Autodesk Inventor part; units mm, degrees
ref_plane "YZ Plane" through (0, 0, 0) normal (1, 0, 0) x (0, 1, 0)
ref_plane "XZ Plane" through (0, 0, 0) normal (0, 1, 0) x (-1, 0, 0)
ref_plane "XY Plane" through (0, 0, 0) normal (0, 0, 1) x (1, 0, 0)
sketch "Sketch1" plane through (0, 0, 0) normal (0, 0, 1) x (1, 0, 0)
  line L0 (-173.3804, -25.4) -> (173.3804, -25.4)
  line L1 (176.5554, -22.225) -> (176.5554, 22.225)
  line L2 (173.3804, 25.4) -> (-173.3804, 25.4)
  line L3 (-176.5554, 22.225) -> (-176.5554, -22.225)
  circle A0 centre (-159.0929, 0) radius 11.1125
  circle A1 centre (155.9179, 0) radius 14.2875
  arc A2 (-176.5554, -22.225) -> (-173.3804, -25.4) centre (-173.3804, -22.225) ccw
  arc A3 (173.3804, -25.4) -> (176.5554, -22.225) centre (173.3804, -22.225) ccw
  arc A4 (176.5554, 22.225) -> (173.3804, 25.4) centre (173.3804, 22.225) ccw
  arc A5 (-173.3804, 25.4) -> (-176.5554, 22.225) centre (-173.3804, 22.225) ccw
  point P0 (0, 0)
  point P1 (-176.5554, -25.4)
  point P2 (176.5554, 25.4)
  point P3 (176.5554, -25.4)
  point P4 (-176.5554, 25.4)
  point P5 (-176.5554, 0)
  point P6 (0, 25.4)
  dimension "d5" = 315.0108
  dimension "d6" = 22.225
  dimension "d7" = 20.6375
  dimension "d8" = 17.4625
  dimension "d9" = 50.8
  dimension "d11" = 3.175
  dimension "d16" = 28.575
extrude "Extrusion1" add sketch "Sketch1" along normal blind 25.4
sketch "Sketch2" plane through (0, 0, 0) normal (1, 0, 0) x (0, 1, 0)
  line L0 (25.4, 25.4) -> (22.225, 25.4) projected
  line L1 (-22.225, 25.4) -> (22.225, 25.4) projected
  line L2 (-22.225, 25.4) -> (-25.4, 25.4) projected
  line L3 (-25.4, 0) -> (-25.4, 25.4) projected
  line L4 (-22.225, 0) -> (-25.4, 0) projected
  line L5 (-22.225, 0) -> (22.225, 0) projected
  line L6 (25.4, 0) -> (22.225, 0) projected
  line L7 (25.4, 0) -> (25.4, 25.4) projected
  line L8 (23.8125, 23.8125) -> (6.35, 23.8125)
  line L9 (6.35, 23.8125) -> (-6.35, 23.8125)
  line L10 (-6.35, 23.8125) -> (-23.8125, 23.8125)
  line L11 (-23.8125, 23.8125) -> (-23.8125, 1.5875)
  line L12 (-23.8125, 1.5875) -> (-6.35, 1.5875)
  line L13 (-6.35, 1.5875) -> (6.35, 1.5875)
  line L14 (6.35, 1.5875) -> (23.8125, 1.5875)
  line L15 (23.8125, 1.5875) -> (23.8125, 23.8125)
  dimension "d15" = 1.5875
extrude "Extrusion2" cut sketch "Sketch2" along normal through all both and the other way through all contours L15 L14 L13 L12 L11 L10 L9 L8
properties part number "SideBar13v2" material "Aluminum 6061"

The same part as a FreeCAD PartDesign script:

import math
import FreeCAD as App
import Part
import Sketcher
Q = App.Units.Quantity

doc = App.newDocument("Part")
body = doc.addObject("PartDesign::Body", "Body")

# Sketch on XY plane
sketch1 = body.newObject("Sketcher::SketchObject", "Sketch")
sketch1.AttachmentSupport = (doc.getObject("XY_Plane"), [""])
sketch1.MapMode = "FlatFace"
sketch1.addGeometry([
    Part.ArcOfCircle(Part.Circle(App.Vector(-173.4, -22.2, 0), App.Vector(0, 0, 1), 3.2), math.radians(180), math.radians(270)),  # 0
    Part.LineSegment(App.Vector(-173.4, -25.4, 0), App.Vector(173.4, -25.4, 0)),  # 1
    Part.ArcOfCircle(Part.Circle(App.Vector(173.4, -22.2, 0), App.Vector(0, 0, 1), 3.2), math.radians(-90), math.radians(0)),  # 2
    Part.LineSegment(App.Vector(176.6, -22.2, 0), App.Vector(176.6, 22.2, 0)),  # 3
    Part.ArcOfCircle(Part.Circle(App.Vector(173.4, 22.2, 0), App.Vector(0, 0, 1), 3.2), math.radians(0), math.radians(90)),  # 4
    Part.LineSegment(App.Vector(173.4, 25.4, 0), App.Vector(-173.4, 25.4, 0)),  # 5
    Part.ArcOfCircle(Part.Circle(App.Vector(-173.4, 22.2, 0), App.Vector(0, 0, 1), 3.2), math.radians(90), math.radians(180)),  # 6
    Part.LineSegment(App.Vector(-176.6, 22.2, 0), App.Vector(-176.6, -22.2, 0)),  # 7
    Part.Circle(App.Vector(-159.1, 0, 0), App.Vector(0, 0, 1), 11.1),  # 8
    Part.Circle(App.Vector(155.9, 0, 0), App.Vector(0, 0, 1), 14.3),  # 9
], False)
sketch1.addConstraint([
    Sketcher.Constraint("Tangent", 0, 2, 1, 1),
    Sketcher.Constraint("Tangent", 1, 2, 2, 1),
    Sketcher.Constraint("Tangent", 2, 2, 3, 1),
    Sketcher.Constraint("Tangent", 3, 2, 4, 1),
    Sketcher.Constraint("Tangent", 4, 2, 5, 1),
    Sketcher.Constraint("Tangent", 5, 2, 6, 1),
    Sketcher.Constraint("Tangent", 6, 2, 7, 1),
    Sketcher.Constraint("Tangent", 7, 2, 0, 1),
    Sketcher.Constraint("Horizontal", 1),
    Sketcher.Constraint("Vertical", 3),
    Sketcher.Constraint("Horizontal", 5),
    Sketcher.Constraint("Vertical", 7),
    Sketcher.Constraint("Equal", 0, 2),
    Sketcher.Constraint("Equal", 2, 4),
    Sketcher.Constraint("Equal", 4, 6),
    Sketcher.Constraint("Symmetric", 0, 3, 4, 3, -1, 1),
    Sketcher.Constraint("PointOnObject", 8, 3, -1),
    Sketcher.Constraint("PointOnObject", 9, 3, -1),
    Sketcher.Constraint("Diameter", 8, Q("0.875 in")),
    Sketcher.Constraint("Diameter", 9, Q("1.125 in")),
    Sketcher.Constraint("Radius", 0, Q("0.125 in")),
    Sketcher.Constraint("DistanceY", 0, 2, 5, 2, Q("2 in")),
    Sketcher.Constraint("DistanceX", 9, 3, 2, 3, Q("0.6875 in")),
    Sketcher.Constraint("DistanceX", 8, 3, 9, 3, Q("12.402 in")),
    Sketcher.Constraint("DistanceX", 6, 2, 8, 3, Q("0.6875 in")),
])
pad1 = body.newObject("PartDesign::Pad", "Pad")
pad1.Profile = sketch1
pad1.Length = Q("1 in")

# Sketch on YZ plane
sketch2 = body.newObject("Sketcher::SketchObject", "Sketch001")
sketch2.AttachmentSupport = (doc.getObject("YZ_Plane"), [""])
sketch2.MapMode = "FlatFace"
sketch2.addGeometry([
    Part.LineSegment(App.Vector(24, 2, 0), App.Vector(24, 24, 0)),
    Part.LineSegment(App.Vector(24, 24, 0), App.Vector(-24, 24, 0)),
    Part.LineSegment(App.Vector(-24, 24, 0), App.Vector(-24, 2, 0)),
    Part.LineSegment(App.Vector(-24, 2, 0), App.Vector(24, 2, 0)),
], False)
sketch2.addConstraint([
    Sketcher.Constraint("Coincident", 0, 2, 1, 1),
    Sketcher.Constraint("Coincident", 1, 2, 2, 1),
    Sketcher.Constraint("Coincident", 2, 2, 3, 1),
    Sketcher.Constraint("Coincident", 3, 2, 0, 1),
    Sketcher.Constraint("Vertical", 0),
    Sketcher.Constraint("Horizontal", 1),
    Sketcher.Constraint("Vertical", 2),
    Sketcher.Constraint("Horizontal", 3),
    Sketcher.Constraint("DistanceY", -1, 1, 2, 2, Q("0.0625 in")),
    Sketcher.Constraint("DistanceX", 1, 2, 1, 1, Q("1.875 in")),
    Sketcher.Constraint("DistanceY", 0, 1, 0, 2, Q("0.875 in")),
    Sketcher.Constraint("DistanceX", -1, 1, 0, 2, Q("0.9375 in")),
])
pocket1 = body.newObject("PartDesign::Pocket", "Pocket")
pocket1.Profile = sketch2
pocket1.Type = "ThroughAll"
pocket1.Midplane = True

doc.recompute()
